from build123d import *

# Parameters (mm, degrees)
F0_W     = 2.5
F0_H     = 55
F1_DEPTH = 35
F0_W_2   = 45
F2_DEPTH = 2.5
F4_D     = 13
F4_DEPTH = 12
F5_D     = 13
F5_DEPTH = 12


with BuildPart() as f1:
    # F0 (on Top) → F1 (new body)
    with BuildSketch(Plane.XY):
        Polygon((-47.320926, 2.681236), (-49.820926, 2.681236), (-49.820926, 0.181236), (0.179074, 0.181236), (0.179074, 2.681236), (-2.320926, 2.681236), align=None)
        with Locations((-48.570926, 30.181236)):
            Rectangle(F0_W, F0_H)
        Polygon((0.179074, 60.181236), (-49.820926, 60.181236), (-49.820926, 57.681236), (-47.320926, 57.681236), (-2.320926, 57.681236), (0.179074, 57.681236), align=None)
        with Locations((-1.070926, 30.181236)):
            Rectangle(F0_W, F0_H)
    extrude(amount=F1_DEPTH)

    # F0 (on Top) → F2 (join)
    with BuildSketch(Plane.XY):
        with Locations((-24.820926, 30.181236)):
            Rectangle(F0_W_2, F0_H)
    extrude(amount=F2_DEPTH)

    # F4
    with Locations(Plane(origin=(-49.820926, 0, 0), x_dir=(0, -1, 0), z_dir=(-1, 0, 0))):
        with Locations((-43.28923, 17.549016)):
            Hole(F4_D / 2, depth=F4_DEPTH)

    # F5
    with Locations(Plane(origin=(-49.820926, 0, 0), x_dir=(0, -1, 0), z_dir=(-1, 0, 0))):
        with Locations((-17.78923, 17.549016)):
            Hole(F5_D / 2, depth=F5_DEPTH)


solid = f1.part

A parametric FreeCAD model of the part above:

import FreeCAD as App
import Part
import Sketcher

V = App.Vector
Q = App.Units.Quantity


def add_polygon(sketch, points):
    """Adds a closed chain of lines whose ends are joined by coincident constraints."""
    first, n = sketch.GeometryCount, len(points)
    for a, b in zip(points, points[1:] + points[:1]):
        sketch.addGeometry(Part.LineSegment(App.Vector(*a, 0), App.Vector(*b, 0)), False)
    for i in range(n):
        sketch.addConstraint(Sketcher.Constraint("Coincident", first + i, 2, first + (i + 1) % n, 1))

doc = App.newDocument("Part")
params = doc.addObject("Spreadsheet::Sheet", "Params")
for row, (alias, value) in enumerate([
    ("sketch1_width", "50 mm"),
    ("sketch1_width2", "45 mm"),
    ("sketch1_height", "60 mm"),
    ("sketch1_height2", "55 mm"),
    ("pad1_length", "35 mm"),
    ("sketch2_width", "45 mm"),
    ("sketch2_height", "55 mm"),
    ("pad2_length", "2.5 mm"),
    ("sketch3_diameter", "13 mm"),
    ("hole_diameter", "13 mm"),
    ("hole_depth", "12 mm"),
    ("sketch4_diameter", "13 mm"),
    ("hole2_diameter", "13 mm"),
    ("hole2_depth", "12 mm"),
], start=1):
    params.set(f"A{row}", alias)
    params.set(f"B{row}", "=" + value)
    params.setAlias(f"B{row}", alias)

body = doc.addObject("PartDesign::Body", "Body")

sketch1 = doc.addObject("Sketcher::SketchObject", "Sketch")
body.addObject(sketch1)
sketch1.AttachmentSupport = (doc.XY_Plane, [""])
sketch1.MapMode = "FlatFace"
add_polygon(sketch1, [(-49.820926, 0.181236), (0.179074, 0.181236), (0.179074, 60.181236), (-49.820926, 60.181236)])
add_polygon(sketch1, [(-2.320926, 2.681236), (-47.320926, 2.681236), (-47.320926, 57.681236), (-2.320926, 57.681236)])
sketch1.addConstraint([
    Sketcher.Constraint("Horizontal", 0),
    Sketcher.Constraint("Vertical", 1),
    Sketcher.Constraint("Horizontal", 2),
    Sketcher.Constraint("Vertical", 3),
    Sketcher.Constraint("Horizontal", 4),
    Sketcher.Constraint("Vertical", 5),
    Sketcher.Constraint("Horizontal", 6),
    Sketcher.Constraint("Vertical", 7),
    Sketcher.Constraint("DistanceX", 0, 1, 0, 2, Q("50 mm")),
    Sketcher.Constraint("DistanceX", 4, 2, 4, 1, Q("45 mm")),
    Sketcher.Constraint("DistanceY", 1, 1, 1, 2, Q("60 mm")),
    Sketcher.Constraint("DistanceY", 5, 1, 5, 2, Q("55 mm")),
    Sketcher.Constraint("DistanceX", 3, 2, 4, 2, Q("2.5 mm")),
    Sketcher.Constraint("DistanceY", 3, 2, 4, 2, Q("2.5 mm")),
    Sketcher.Constraint("DistanceX", -1, 1, 0, 2, Q("0.179074 mm")),
    Sketcher.Constraint("DistanceY", -1, 1, 0, 2, Q("0.181236 mm")),
])
sketch1.setExpression("Constraints[16]", "Params.sketch1_width")
sketch1.setExpression("Constraints[17]", "Params.sketch1_width2")
sketch1.setExpression("Constraints[18]", "Params.sketch1_height")
sketch1.setExpression("Constraints[19]", "Params.sketch1_height2")
pad1 = doc.addObject("PartDesign::Pad", "Pad")
body.addObject(pad1)
pad1.Profile = sketch1
pad1.setExpression("Length", "Params.pad1_length")

sketch2 = doc.addObject("Sketcher::SketchObject", "Sketch001")
body.addObject(sketch2)
sketch2.AttachmentSupport = (doc.XY_Plane, [""])
sketch2.MapMode = "FlatFace"
add_polygon(sketch2, [(-47.320926, 57.681236), (-47.320926, 2.681236), (-2.320926, 2.681236), (-2.320926, 57.681236)])
sketch2.addConstraint([
    Sketcher.Constraint("Vertical", 0),
    Sketcher.Constraint("Horizontal", 1),
    Sketcher.Constraint("Vertical", 2),
    Sketcher.Constraint("Horizontal", 3),
    Sketcher.Constraint("DistanceX", 1, 1, 1, 2, Q("45 mm")),
    Sketcher.Constraint("DistanceY", 0, 2, 0, 1, Q("55 mm")),
    Sketcher.Constraint("DistanceX", 0, 2, -1, 1, Q("47.320926 mm")),
    Sketcher.Constraint("DistanceY", -1, 1, 0, 2, Q("2.681236 mm")),
])
sketch2.setExpression("Constraints[8]", "Params.sketch2_width")
sketch2.setExpression("Constraints[9]", "Params.sketch2_height")
pad2 = doc.addObject("PartDesign::Pad", "Pad001")
body.addObject(pad2)
pad2.Profile = sketch2
pad2.setExpression("Length", "Params.pad2_length")

sketch3 = doc.addObject("Sketcher::SketchObject", "Sketch002")
body.addObject(sketch3)
sketch3.AttachmentSupport = (doc.YZ_Plane, [""])
sketch3.MapMode = "FlatFace"
sketch3.AttachmentOffset = App.Placement(V(0, 0, -49.820926), App.Rotation())
sketch3.addGeometry(Part.Circle(V(43.28923, 17.549016, 0), V(0, 0, 1), 6.5), False)
sketch3.addConstraint([
    Sketcher.Constraint("Diameter", 0, Q("13 mm")),
    Sketcher.Constraint("DistanceX", -1, 1, 0, 3, Q("43.28923 mm")),
    Sketcher.Constraint("DistanceY", -1, 1, 0, 3, Q("17.549016 mm")),
])
sketch3.setExpression("Constraints[0]", "Params.sketch3_diameter")
doc.recompute()
hole = doc.addObject("PartDesign::Hole", "Hole")
body.addObject(hole)
hole.Profile = sketch3
hole.ThreadType = "None"
hole.setExpression("Diameter", "Params.hole_diameter")
hole.DepthType = "Dimension"
hole.setExpression("Depth", "Params.hole_depth")
hole.DrillPoint = "Flat"
hole.Reversed = True

sketch4 = doc.addObject("Sketcher::SketchObject", "Sketch003")
body.addObject(sketch4)
sketch4.AttachmentSupport = (doc.YZ_Plane, [""])
sketch4.MapMode = "FlatFace"
sketch4.AttachmentOffset = App.Placement(V(0, 0, -49.820926), App.Rotation())
sketch4.addGeometry(Part.Circle(V(17.78923, 17.549016, 0), V(0, 0, 1), 6.5), False)
sketch4.addConstraint([
    Sketcher.Constraint("Diameter", 0, Q("13 mm")),
    Sketcher.Constraint("DistanceX", -1, 1, 0, 3, Q("17.78923 mm")),
    Sketcher.Constraint("DistanceY", -1, 1, 0, 3, Q("17.549016 mm")),
])
sketch4.setExpression("Constraints[0]", "Params.sketch4_diameter")
doc.recompute()
hole2 = doc.addObject("PartDesign::Hole", "Hole001")
body.addObject(hole2)
hole2.Profile = sketch4
hole2.ThreadType = "None"
hole2.setExpression("Diameter", "Params.hole2_diameter")
hole2.DepthType = "Dimension"
hole2.setExpression("Depth", "Params.hole2_depth")
hole2.DrillPoint = "Flat"
hole2.Reversed = True

doc.recompute()
